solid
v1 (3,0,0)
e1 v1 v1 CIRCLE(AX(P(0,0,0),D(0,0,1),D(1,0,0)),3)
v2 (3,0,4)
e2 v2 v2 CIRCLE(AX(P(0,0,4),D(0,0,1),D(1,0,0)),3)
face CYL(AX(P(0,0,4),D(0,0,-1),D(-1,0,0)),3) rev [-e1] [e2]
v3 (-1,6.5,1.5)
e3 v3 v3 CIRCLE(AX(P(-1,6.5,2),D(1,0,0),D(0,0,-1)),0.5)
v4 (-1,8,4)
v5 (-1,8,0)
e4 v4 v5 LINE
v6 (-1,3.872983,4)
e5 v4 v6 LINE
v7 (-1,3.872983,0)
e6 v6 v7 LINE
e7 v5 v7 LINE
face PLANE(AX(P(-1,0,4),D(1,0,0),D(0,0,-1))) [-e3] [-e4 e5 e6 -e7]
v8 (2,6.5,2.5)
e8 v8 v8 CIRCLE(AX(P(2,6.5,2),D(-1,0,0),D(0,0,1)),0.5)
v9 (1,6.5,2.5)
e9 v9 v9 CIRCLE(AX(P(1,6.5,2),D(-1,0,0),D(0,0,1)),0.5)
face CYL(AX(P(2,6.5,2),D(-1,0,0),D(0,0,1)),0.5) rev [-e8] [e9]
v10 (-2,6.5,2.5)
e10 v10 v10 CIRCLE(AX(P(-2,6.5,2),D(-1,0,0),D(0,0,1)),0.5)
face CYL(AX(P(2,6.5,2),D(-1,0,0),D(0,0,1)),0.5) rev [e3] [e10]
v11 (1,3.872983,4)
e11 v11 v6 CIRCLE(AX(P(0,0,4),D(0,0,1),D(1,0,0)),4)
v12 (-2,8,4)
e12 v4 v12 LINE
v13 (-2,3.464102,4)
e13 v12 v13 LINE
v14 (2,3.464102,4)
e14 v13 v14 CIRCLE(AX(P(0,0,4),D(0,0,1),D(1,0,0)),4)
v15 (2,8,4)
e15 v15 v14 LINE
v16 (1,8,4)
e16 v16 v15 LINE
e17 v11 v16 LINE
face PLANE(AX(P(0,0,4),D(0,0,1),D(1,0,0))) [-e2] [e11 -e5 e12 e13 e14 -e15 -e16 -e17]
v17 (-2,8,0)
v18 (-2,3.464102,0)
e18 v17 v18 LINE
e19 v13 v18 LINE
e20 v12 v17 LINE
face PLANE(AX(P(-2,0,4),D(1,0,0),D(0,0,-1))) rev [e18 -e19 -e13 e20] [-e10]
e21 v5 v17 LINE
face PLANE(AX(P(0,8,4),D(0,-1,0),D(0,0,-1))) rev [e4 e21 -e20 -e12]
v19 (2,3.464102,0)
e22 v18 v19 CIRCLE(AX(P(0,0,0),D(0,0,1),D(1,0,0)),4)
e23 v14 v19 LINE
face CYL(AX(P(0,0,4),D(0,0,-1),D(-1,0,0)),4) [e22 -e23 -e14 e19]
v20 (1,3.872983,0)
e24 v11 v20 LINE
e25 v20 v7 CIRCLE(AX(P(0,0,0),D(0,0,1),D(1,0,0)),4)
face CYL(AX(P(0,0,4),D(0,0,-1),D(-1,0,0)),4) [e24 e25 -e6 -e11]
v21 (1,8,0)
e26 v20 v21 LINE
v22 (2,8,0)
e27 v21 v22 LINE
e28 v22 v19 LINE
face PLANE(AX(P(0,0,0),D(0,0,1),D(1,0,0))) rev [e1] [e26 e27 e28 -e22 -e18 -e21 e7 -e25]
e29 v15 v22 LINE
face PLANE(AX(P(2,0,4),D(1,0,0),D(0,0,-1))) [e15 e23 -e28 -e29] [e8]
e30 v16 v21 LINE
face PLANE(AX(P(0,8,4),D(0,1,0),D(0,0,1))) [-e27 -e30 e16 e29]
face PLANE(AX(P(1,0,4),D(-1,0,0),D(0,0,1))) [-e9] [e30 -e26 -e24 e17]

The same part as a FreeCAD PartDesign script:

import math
import FreeCAD as App
import Part
import Sketcher

V = App.Vector

doc = App.newDocument("Part")
body = doc.addObject("PartDesign::Body", "Body")

sketch1 = doc.addObject("Sketcher::SketchObject", "Sketch")
body.addObject(sketch1)
sketch1.AttachmentSupport = (doc.XY_Plane, [""])
sketch1.MapMode = "FlatFace"
sketch1.addGeometry([
    Part.ArcOfCircle(Part.Circle(V(0, 0, 0), V(0, 0, 1), 4), math.radians(75.52), math.radians(90)),
    Part.ArcOfCircle(Part.Circle(V(0, 0, 0), V(0, 0, 1), 4), math.radians(90), math.radians(104.48)),
    Part.LineSegment(V(-1, 3.9, 0), V(-1, 8, 0)),
    Part.LineSegment(V(-1, 8, 0), V(-2, 8, 0)),
    Part.LineSegment(V(-2, 8, 0), V(-2, 3.5, 0)),
    Part.ArcOfCircle(Part.Circle(V(0, 0, 0), V(0, 0, 1), 4), math.radians(120), math.radians(360)),
    Part.ArcOfCircle(Part.Circle(V(0, 0, 0), V(0, 0, 1), 4), math.radians(0), math.radians(60)),
    Part.LineSegment(V(2, 3.5, 0), V(2, 8, 0)),
    Part.LineSegment(V(2, 8, 0), V(1, 8, 0)),
    Part.LineSegment(V(1, 8, 0), V(1, 3.9, 0)),
    Part.ArcOfCircle(Part.Circle(V(0, 0, 0), V(0, 0, 1), 3), math.radians(90), math.radians(132)),
    Part.ArcOfCircle(Part.Circle(V(0, 0, 0), V(0, 0, 1), 3), math.radians(48), math.radians(90)),
    Part.ArcOfCircle(Part.Circle(V(0, 0, 0), V(0, 0, 1), 3), math.radians(0), math.radians(48)),
    Part.ArcOfCircle(Part.Circle(V(0, 0, 0), V(0, 0, 1), 3), math.radians(132), math.radians(360)),
], False)
sketch1.addConstraint([
    Sketcher.Constraint("Tangent", 0, 2, 1, 1),
    Sketcher.Constraint("Coincident", 1, 2, 2, 1),
    Sketcher.Constraint("Coincident", 2, 2, 3, 1),
    Sketcher.Constraint("Coincident", 3, 2, 4, 1),
    Sketcher.Constraint("Coincident", 4, 2, 5, 1),
    Sketcher.Constraint("Tangent", 5, 2, 6, 1),
    Sketcher.Constraint("Coincident", 6, 2, 7, 1),
    Sketcher.Constraint("Coincident", 7, 2, 8, 1),
    Sketcher.Constraint("Coincident", 8, 2, 9, 1),
    Sketcher.Constraint("Coincident", 9, 2, 0, 1),
    Sketcher.Constraint("Tangent", 10, 1, 11, 2),
    Sketcher.Constraint("Tangent", 11, 1, 12, 2),
    Sketcher.Constraint("Tangent", 12, 1, 13, 2),
    Sketcher.Constraint("Tangent", 13, 1, 10, 2),
    Sketcher.Constraint("Vertical", 2),
    Sketcher.Constraint("Horizontal", 3),
    Sketcher.Constraint("Vertical", 4),
    Sketcher.Constraint("Vertical", 7),
    Sketcher.Constraint("Horizontal", 8),
    Sketcher.Constraint("Vertical", 9),
    Sketcher.Constraint("Coincident", 0, 3, -1, 1),
    Sketcher.Constraint("Coincident", 5, 3, -1, 1),
    Sketcher.Constraint("Coincident", 10, 3, -1, 1),
    Sketcher.Constraint("Equal", 0, 1),
    Sketcher.Constraint("Equal", 1, 5),
    Sketcher.Constraint("Equal", 5, 6),
    Sketcher.Constraint("Equal", 10, 11),
    Sketcher.Constraint("Symmetric", 3, 2, 7, 2, -2),
    Sketcher.Constraint("PointOnObject", 0, 2, -2),
    Sketcher.Constraint("PointOnObject", 5, 2, -1),
    Sketcher.Constraint("PointOnObject", 10, 1, -2),
    Sketcher.Constraint("PointOnObject", 12, 1, -1),
    Sketcher.Constraint("Horizontal", 1, 2, 9, 2),
    Sketcher.Constraint("Horizontal", 11, 1, 13, 1),
    Sketcher.Constraint("Vertical", 7, 2, 11, 1),
    Sketcher.Constraint("Radius", 0, 4.0),
    Sketcher.Constraint("Radius", 10, 3.0),
    Sketcher.Constraint("DistanceX", 3, 2, 3, 1, 1.0),
    Sketcher.Constraint("DistanceX", 1, 2, -1, 1, 1.0),
    Sketcher.Constraint("DistanceY", -1, 1, 2, 2, 8.0),
])
pad1 = doc.addObject("PartDesign::Pad", "Pad")
body.addObject(pad1)
pad1.Profile = sketch1
pad1.Length = 4

sketch2 = doc.addObject("Sketcher::SketchObject", "Sketch001")
body.addObject(sketch2)
sketch2.AttachmentSupport = (doc.YZ_Plane, [""])
sketch2.MapMode = "FlatFace"
sketch2.AttachmentOffset = App.Placement(V(0, 0, -2), App.Rotation())
sketch2.addGeometry(Part.Circle(V(6.5, 2, 0), V(0, 0, 1), 0.5), False)
sketch2.addConstraint([
    Sketcher.Constraint("Diameter", 0, 1.0),
    Sketcher.Constraint("DistanceY", -1, 1, 0, 3, 2.0),
    Sketcher.Constraint("DistanceX", -1, 1, 0, 3, 6.5),
])
pocket1 = doc.addObject("PartDesign::Pocket", "Pocket")
body.addObject(pocket1)
pocket1.Profile = sketch2
pocket1.Length = 4
pocket1.Reversed = True

doc.recompute()
